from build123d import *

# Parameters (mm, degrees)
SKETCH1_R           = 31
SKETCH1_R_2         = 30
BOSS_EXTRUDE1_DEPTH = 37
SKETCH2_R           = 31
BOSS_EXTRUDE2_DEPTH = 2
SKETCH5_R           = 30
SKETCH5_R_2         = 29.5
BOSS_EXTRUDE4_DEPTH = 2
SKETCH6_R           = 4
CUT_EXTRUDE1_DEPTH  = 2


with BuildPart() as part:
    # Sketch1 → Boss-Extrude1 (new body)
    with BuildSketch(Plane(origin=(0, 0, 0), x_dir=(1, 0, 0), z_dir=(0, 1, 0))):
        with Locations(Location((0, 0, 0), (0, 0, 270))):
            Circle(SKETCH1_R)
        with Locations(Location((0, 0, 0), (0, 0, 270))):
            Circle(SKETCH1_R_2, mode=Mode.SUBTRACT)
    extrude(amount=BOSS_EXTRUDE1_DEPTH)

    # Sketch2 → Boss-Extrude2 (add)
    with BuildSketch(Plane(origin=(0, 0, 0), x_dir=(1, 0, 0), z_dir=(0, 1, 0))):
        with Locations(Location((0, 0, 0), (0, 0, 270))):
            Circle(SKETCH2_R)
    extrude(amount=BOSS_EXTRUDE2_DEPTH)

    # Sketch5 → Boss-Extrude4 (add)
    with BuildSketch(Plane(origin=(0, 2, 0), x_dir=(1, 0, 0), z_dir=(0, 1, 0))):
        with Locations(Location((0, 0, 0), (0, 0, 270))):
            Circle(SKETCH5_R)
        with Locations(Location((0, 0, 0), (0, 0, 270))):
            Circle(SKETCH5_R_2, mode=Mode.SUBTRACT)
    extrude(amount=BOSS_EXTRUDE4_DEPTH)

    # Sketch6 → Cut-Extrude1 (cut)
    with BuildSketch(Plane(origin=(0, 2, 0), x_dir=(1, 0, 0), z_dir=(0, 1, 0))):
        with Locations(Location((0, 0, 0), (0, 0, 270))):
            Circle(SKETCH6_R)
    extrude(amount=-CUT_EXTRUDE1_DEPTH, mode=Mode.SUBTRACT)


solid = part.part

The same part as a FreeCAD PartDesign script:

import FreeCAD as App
import Part
import Sketcher

V = App.Vector
Q = App.Units.Quantity

doc = App.newDocument("Part")
body = doc.addObject("PartDesign::Body", "Body")

# Sketch on XZ plane
sketch1 = body.newObject("Sketcher::SketchObject", "Sketch")
sketch1.AttachmentSupport = (doc.getObject("XZ_Plane"), [""])
sketch1.MapMode = "FlatFace"
sketch1.addGeometry(Part.Circle(V(0, 0, 0), V(0, 0, 1), 31), False)
sketch1.addGeometry(Part.Circle(V(0, 0, 0), V(0, 0, 1), 30), False)
sketch1.addConstraint(Sketcher.Constraint("Coincident", 0, 3, -1, 1))
sketch1.addConstraint(Sketcher.Constraint("Coincident", 1, 3, -1, 1))
sketch1.addConstraint(Sketcher.Constraint("Diameter", 0, Q("62 mm")))
sketch1.addConstraint(Sketcher.Constraint("Diameter", 1, Q("60 mm")))
pad1 = body.newObject("PartDesign::Pad", "Pad")
pad1.Profile = sketch1
pad1.Length = 37
pad1.Reversed = True

# Sketch on XZ plane
sketch2 = body.newObject("Sketcher::SketchObject", "Sketch001")
sketch2.AttachmentSupport = (doc.getObject("XZ_Plane"), [""])
sketch2.MapMode = "FlatFace"
sketch2.addGeometry(Part.Circle(V(0, 0, 0), V(0, 0, 1), 31), False)
sketch2.addConstraint(Sketcher.Constraint("Coincident", 0, 3, -1, 1))
sketch2.addConstraint(Sketcher.Constraint("Diameter", 0, Q("62 mm")))
pad2 = body.newObject("PartDesign::Pad", "Pad001")
pad2.Profile = sketch2
pad2.Length = 2
pad2.Reversed = True

# Sketch on XZ plane
sketch3 = body.newObject("Sketcher::SketchObject", "Sketch002")
sketch3.AttachmentSupport = (doc.getObject("XZ_Plane"), [""])
sketch3.MapMode = "FlatFace"
sketch3.AttachmentOffset = App.Placement(V(0, 0, -2), App.Rotation())
sketch3.addGeometry(Part.Circle(V(0, 0, 0), V(0, 0, 1), 30), False)
sketch3.addGeometry(Part.Circle(V(0, 0, 0), V(0, 0, 1), 30), False)
sketch3.addConstraint(Sketcher.Constraint("Coincident", 0, 3, -1, 1))
sketch3.addConstraint(Sketcher.Constraint("Coincident", 1, 3, -1, 1))
sketch3.addConstraint(Sketcher.Constraint("Diameter", 0, Q("60 mm")))
sketch3.addConstraint(Sketcher.Constraint("Diameter", 1, Q("59 mm")))
pad3 = body.newObject("PartDesign::Pad", "Pad002")
pad3.Profile = sketch3
pad3.Length = 2
pad3.Reversed = True

# Sketch on XZ plane
sketch4 = body.newObject("Sketcher::SketchObject", "Sketch003")
sketch4.AttachmentSupport = (doc.getObject("XZ_Plane"), [""])
sketch4.MapMode = "FlatFace"
sketch4.AttachmentOffset = App.Placement(V(0, 0, -2), App.Rotation())
sketch4.addGeometry(Part.Circle(V(0, 0, 0), V(0, 0, 1), 4), False)
sketch4.addConstraint(Sketcher.Constraint("Coincident", 0, 3, -1, 1))
sketch4.addConstraint(Sketcher.Constraint("Diameter", 0, Q("8 mm")))
pocket1 = body.newObject("PartDesign::Pocket", "Pocket")
pocket1.Profile = sketch4
pocket1.Length = 2
pocket1.Reversed = True

doc.recompute()
